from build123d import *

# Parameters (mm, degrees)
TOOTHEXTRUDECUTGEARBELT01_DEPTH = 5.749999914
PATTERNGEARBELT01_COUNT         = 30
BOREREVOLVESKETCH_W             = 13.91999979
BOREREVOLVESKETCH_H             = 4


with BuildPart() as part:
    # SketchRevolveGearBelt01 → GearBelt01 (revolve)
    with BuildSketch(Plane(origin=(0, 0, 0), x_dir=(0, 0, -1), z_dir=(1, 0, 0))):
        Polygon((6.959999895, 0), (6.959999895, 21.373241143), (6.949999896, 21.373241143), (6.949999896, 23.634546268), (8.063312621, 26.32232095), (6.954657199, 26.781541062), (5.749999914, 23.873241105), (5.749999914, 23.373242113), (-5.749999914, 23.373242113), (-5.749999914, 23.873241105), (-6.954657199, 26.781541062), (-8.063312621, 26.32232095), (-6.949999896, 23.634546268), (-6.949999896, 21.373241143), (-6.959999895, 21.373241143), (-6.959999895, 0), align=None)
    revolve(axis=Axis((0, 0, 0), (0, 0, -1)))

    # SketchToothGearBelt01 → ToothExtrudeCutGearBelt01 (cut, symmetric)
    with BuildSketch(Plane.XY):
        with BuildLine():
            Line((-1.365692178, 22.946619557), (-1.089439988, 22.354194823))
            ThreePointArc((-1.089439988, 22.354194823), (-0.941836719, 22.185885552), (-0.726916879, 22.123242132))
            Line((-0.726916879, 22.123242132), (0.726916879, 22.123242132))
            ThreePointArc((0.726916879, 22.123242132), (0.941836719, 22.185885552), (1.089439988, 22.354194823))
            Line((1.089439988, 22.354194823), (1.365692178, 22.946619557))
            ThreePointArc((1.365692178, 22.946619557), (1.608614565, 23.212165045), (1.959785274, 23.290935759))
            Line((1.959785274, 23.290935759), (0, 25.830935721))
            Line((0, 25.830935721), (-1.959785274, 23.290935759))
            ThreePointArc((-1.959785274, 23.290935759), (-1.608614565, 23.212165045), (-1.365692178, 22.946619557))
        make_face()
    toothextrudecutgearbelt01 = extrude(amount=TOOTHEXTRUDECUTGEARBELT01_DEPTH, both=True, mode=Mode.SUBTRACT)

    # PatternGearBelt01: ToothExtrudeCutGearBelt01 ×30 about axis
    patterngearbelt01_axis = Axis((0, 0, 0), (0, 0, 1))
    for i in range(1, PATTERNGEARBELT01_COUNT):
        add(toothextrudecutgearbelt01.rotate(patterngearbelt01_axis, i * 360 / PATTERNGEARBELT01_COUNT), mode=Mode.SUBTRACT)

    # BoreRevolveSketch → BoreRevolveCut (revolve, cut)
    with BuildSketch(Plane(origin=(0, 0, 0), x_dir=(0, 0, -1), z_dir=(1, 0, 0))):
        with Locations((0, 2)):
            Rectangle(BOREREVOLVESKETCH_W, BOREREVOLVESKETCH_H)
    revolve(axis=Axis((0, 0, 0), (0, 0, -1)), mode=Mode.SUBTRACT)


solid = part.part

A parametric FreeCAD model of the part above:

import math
import FreeCAD as App
import Part
import Sketcher

V = App.Vector
Q = App.Units.Quantity


def add_polygon(sketch, points):
    """Adds a closed chain of lines whose ends are joined by coincident constraints."""
    first, n = sketch.GeometryCount, len(points)
    for a, b in zip(points, points[1:] + points[:1]):
        sketch.addGeometry(Part.LineSegment(App.Vector(*a, 0), App.Vector(*b, 0)), False)
    for i in range(n):
        sketch.addConstraint(Sketcher.Constraint("Coincident", first + i, 2, first + (i + 1) % n, 1))

doc = App.newDocument("Part")
params = doc.addObject("Spreadsheet::Sheet", "Params")
for row, (alias, value) in enumerate([
    ("sketch1_width", "0.499999 mm"),
    ("sketch1_height", "11.5 mm"),
    ("sketch1_length", "1.2 mm"),
    ("sketch1_height2", "0.01 mm"),
    ("sketch1_height3", "13.92 mm"),
    ("revolution_angle", "360 deg"),
    ("sketch2_radius", "0.4 mm"),
    ("sketch2_radius2", "0.6 mm"),
    ("pocket1_length", "11.5 mm"),
    ("sketch3_width", "4 mm"),
    ("sketch3_height", "13.92 mm"),
    ("groove_angle", "360 deg"),
], start=1):
    params.set(f"A{row}", alias)
    params.set(f"B{row}", "=" + value)
    params.setAlias(f"B{row}", alias)

body = doc.addObject("PartDesign::Body", "Body")

sketch1 = body.newObject("Sketcher::SketchObject", "Sketch")
sketch1.AttachmentSupport = (doc.getObject("YZ_Plane"), [""])
sketch1.MapMode = "FlatFace"
add_polygon(sketch1, [(0, -6.96), (21.373, -6.96), (21.373, -6.95), (23.635, -6.95), (26.322, -8.063), (26.782, -6.955), (23.873, -5.75), (23.373, -5.75), (23.373, 5.75), (23.873, 5.75), (26.782, 6.955), (26.322, 8.063), (23.635, 6.95), (21.373, 6.95), (21.373, 6.96), (0, 6.96)])
sketch1.addConstraint([
    Sketcher.Constraint("Horizontal", 0),
    Sketcher.Constraint("Vertical", 1),
    Sketcher.Constraint("Horizontal", 2),
    Sketcher.Constraint("Horizontal", 6),
    Sketcher.Constraint("Vertical", 7),
    Sketcher.Constraint("Horizontal", 8),
    Sketcher.Constraint("Horizontal", 12),
    Sketcher.Constraint("Vertical", 13),
    Sketcher.Constraint("Horizontal", 14),
    Sketcher.Constraint("Vertical", 15),
    Sketcher.Constraint("Symmetric", 14, 2, 15, 2, -1, 1),
    Sketcher.Constraint("Symmetric", 5, 2, 8, 2, -1),
    Sketcher.Constraint("Symmetric", 4, 2, 9, 2, -1),
    Sketcher.Constraint("Symmetric", 3, 2, 10, 2, -1),
    Sketcher.Constraint("Symmetric", 2, 2, 11, 2, -1),
    Sketcher.Constraint("Perpendicular", 3, 4),
    Sketcher.Constraint("Perpendicular", 4, 5),
    Sketcher.Constraint("Vertical", 1, 2, 12, 2),
    Sketcher.Constraint("DistanceX", 6, 2, 6, 1, Q("0.499999 mm")),
    Sketcher.Constraint("DistanceY", 7, 1, 7, 2, Q("11.5 mm")),
    Sketcher.Constraint("Angle", 3, Q("-22.5 deg")),
    Sketcher.Constraint("DistanceX", 1, 2, 6, 2, Q("2.000001 mm")),
    Sketcher.Constraint("Distance", 4, Q("1.2 mm")),
    Sketcher.Constraint("DistanceY", 1, 1, 1, 2, Q("0.01 mm")),
    Sketcher.Constraint("DistanceY", 15, 2, 15, 1, Q("13.92 mm")),
    Sketcher.Constraint("DistanceX", 0, 1, 0, 2, Q("21.373241 mm")),
    Sketcher.Constraint("DistanceX", 1, 2, 4, 2, Q("5.4083 mm")),
])
sketch1.setExpression("Constraints[34]", "Params.sketch1_width")
sketch1.setExpression("Constraints[35]", "Params.sketch1_height")
sketch1.setExpression("Constraints[38]", "Params.sketch1_length")
sketch1.setExpression("Constraints[39]", "Params.sketch1_height2")
sketch1.setExpression("Constraints[40]", "Params.sketch1_height3")
revolution = body.newObject("PartDesign::Revolution", "Revolution")
revolution.Profile = sketch1
revolution.ReferenceAxis = (sketch1, ["V_Axis"])
revolution.setExpression("Angle", "Params.revolution_angle")

sketch2 = body.newObject("Sketcher::SketchObject", "Sketch001")
sketch2.AttachmentSupport = (doc.getObject("XY_Plane"), [""])
sketch2.MapMode = "FlatFace"
sketch2.addGeometry([
    Part.LineSegment(V(-1.37, 22.95, 0), V(-1.09, 22.35, 0)),
    Part.ArcOfCircle(Part.Circle(V(-0.73, 22.52, 0), V(0, 0, 1), 0.4), math.radians(-155), math.radians(-90)),
    Part.LineSegment(V(-0.73, 22.12, 0), V(0.73, 22.12, 0)),
    Part.ArcOfCircle(Part.Circle(V(0.73, 22.52, 0), V(0, 0, 1), 0.4), math.radians(-90), math.radians(-25)),
    Part.LineSegment(V(1.09, 22.35, 0), V(1.37, 22.95, 0)),
    Part.ArcOfCircle(Part.Circle(V(1.91, 22.69, 0), V(0, 0, 1), 0.6), math.radians(85), math.radians(155)),
    Part.LineSegment(V(1.96, 23.29, 0), V(0, 25.83, 0)),
    Part.LineSegment(V(0, 25.83, 0), V(-1.96, 23.29, 0)),
    Part.ArcOfCircle(Part.Circle(V(-1.91, 22.69, 0), V(0, 0, 1), 0.6), math.radians(25), math.radians(95)),
], False)
sketch2.addConstraint([
    Sketcher.Constraint("Tangent", 0, 2, 1, 1),
    Sketcher.Constraint("Tangent", 1, 2, 2, 1),
    Sketcher.Constraint("Tangent", 2, 2, 3, 1),
    Sketcher.Constraint("Tangent", 3, 2, 4, 1),
    Sketcher.Constraint("Tangent", 4, 2, 5, 2),
    Sketcher.Constraint("Coincident", 5, 1, 6, 1),
    Sketcher.Constraint("Coincident", 6, 2, 7, 1),
    Sketcher.Constraint("Coincident", 7, 2, 8, 2),
    Sketcher.Constraint("Tangent", 8, 1, 0, 1),
    Sketcher.Constraint("Horizontal", 2),
    Sketcher.Constraint("Equal", 1, 3),
    Sketcher.Constraint("Equal", 5, 8),
    Sketcher.Constraint("Symmetric", 5, 3, 8, 3, -2),
    Sketcher.Constraint("PointOnObject", 6, 2, -2),
    Sketcher.Constraint("Horizontal", 0, 2, 3, 2),
    Sketcher.Constraint("Horizontal", 5, 1, 7, 2),
    Sketcher.Constraint("Radius", 1, Q("0.4 mm")),
    Sketcher.Constraint("Radius", 5, Q("0.6 mm")),
    Sketcher.Constraint("Angle", 0, Q("-65 deg")),
    Sketcher.Constraint("DistanceY", 5, 1, 6, 2, Q("2.54 mm")),
    Sketcher.Constraint("Distance", 0, Q("0.653668 mm")),
    Sketcher.Constraint("Distance", 6, Q("3.208171 mm")),
    Sketcher.Constraint("DistanceX", 2, 1, 2, 2, Q("1.453834 mm")),
    Sketcher.Constraint("DistanceY", -1, 1, 5, 3, Q("22.693049 mm")),
])
sketch2.setExpression("Constraints[16]", "Params.sketch2_radius")
sketch2.setExpression("Constraints[17]", "Params.sketch2_radius2")
pocket1 = body.newObject("PartDesign::Pocket", "Pocket")
pocket1.Profile = sketch2
pocket1.setExpression("Length", "Params.pocket1_length")
pocket1.Midplane = True
doc.recompute()

polarpattern = body.newObject("PartDesign::PolarPattern", "PolarPattern")
polarpattern.Originals = [pocket1]
polarpattern.Axis = (doc.getObject("Z_Axis"), [""])
polarpattern.Angle = 360
polarpattern.Occurrences = 30
body.Tip = polarpattern

sketch3 = body.newObject("Sketcher::SketchObject", "Sketch002")
sketch3.AttachmentSupport = (doc.getObject("YZ_Plane"), [""])
sketch3.MapMode = "FlatFace"
add_polygon(sketch3, [(4, 7), (0, 7), (0, -7), (4, -7)])
sketch3.addConstraint([
    Sketcher.Constraint("Horizontal", 0),
    Sketcher.Constraint("Vertical", 1),
    Sketcher.Constraint("Horizontal", 2),
    Sketcher.Constraint("Vertical", 3),
    Sketcher.Constraint("Symmetric", 0, 2, 1, 2, -1, 1),
    Sketcher.Constraint("DistanceX", 0, 2, 0, 1, Q("4 mm")),
    Sketcher.Constraint("DistanceY", 1, 2, 1, 1, Q("13.92 mm")),
])
sketch3.setExpression("Constraints[9]", "Params.sketch3_width")
sketch3.setExpression("Constraints[10]", "Params.sketch3_height")
groove = body.newObject("PartDesign::Groove", "Groove")
groove.Profile = sketch3
groove.ReferenceAxis = (sketch3, ["V_Axis"])
groove.setExpression("Angle", "Params.groove_angle")

doc.recompute()
